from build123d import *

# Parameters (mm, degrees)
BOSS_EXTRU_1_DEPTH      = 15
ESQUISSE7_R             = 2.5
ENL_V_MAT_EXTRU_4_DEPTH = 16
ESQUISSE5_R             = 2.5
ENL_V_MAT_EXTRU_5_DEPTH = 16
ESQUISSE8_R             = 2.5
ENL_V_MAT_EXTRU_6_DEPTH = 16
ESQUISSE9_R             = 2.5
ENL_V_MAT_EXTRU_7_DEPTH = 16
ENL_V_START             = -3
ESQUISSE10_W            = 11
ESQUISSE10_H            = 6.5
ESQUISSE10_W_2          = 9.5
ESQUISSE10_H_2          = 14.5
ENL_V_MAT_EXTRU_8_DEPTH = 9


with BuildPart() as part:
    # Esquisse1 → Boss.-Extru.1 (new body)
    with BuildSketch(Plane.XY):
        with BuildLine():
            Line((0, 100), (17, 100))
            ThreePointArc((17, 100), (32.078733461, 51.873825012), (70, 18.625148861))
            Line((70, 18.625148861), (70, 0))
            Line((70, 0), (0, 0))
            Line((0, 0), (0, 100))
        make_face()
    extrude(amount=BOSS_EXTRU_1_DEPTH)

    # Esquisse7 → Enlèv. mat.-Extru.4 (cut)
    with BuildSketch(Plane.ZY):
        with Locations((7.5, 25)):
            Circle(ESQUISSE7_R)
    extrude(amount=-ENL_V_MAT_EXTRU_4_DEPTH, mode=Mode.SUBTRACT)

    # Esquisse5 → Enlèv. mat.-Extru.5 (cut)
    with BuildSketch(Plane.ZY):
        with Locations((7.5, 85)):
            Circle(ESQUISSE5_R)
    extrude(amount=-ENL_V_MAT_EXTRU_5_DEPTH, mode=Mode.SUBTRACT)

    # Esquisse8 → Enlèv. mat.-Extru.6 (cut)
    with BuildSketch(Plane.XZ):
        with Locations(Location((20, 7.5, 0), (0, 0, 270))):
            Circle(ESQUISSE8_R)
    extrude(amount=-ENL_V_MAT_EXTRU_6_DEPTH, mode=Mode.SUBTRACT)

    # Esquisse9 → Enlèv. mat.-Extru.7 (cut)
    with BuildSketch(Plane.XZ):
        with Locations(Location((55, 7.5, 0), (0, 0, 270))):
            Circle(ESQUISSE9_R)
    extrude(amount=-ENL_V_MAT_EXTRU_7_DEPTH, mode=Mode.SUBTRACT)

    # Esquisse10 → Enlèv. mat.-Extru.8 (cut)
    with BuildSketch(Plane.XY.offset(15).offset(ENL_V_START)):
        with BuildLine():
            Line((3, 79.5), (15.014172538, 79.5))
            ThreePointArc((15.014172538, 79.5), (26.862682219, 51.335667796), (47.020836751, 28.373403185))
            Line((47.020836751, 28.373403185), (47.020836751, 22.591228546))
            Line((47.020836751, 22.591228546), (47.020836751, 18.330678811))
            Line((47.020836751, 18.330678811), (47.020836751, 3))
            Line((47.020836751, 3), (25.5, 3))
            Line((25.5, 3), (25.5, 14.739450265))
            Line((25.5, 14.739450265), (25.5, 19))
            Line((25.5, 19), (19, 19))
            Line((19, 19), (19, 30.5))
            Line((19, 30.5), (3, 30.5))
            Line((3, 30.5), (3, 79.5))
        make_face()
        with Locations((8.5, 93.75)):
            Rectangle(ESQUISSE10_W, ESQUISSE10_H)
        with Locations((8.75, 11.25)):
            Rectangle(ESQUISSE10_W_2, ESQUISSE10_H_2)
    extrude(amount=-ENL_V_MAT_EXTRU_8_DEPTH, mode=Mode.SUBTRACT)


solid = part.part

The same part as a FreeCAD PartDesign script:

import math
import FreeCAD as App
import Part
import Sketcher
Q = App.Units.Quantity


def add_polygon(sketch, points):
    """Adds a closed chain of lines whose ends are joined by coincident constraints."""
    first, n = sketch.GeometryCount, len(points)
    for a, b in zip(points, points[1:] + points[:1]):
        sketch.addGeometry(Part.LineSegment(App.Vector(*a, 0), App.Vector(*b, 0)), False)
    for i in range(n):
        sketch.addConstraint(Sketcher.Constraint("Coincident", first + i, 2, first + (i + 1) % n, 1))

doc = App.newDocument("Part")
body = doc.addObject("PartDesign::Body", "Body")

sketch1 = body.newObject("Sketcher::SketchObject", "Sketch")
sketch1.AttachmentSupport = (doc.getObject("XY_Plane"), [""])
sketch1.MapMode = "FlatFace"
sketch1.addGeometry([
    Part.LineSegment(App.Vector(17, 100, 0), App.Vector(0, 100, 0)),
    Part.LineSegment(App.Vector(0, 100, 0), App.Vector(0, 0, 0)),
    Part.LineSegment(App.Vector(0, 0, 0), App.Vector(70, 0, 0)),
    Part.LineSegment(App.Vector(70, 0, 0), App.Vector(70, 18.625149, 0)),
    Part.ArcOfCircle(Part.Circle(App.Vector(110.262354, 102.795354, 0), App.Vector(0, 0, 1), 93.304237), math.radians(-178.283186), math.radians(-115.563864)),
], False)
sketch1.addConstraint([
    Sketcher.Constraint("Coincident", 0, 2, 1, 1),
    Sketcher.Constraint("Coincident", 1, 2, 2, 1),
    Sketcher.Constraint("Coincident", 2, 2, 3, 1),
    Sketcher.Constraint("Coincident", 3, 2, 4, 2),
    Sketcher.Constraint("Coincident", 4, 1, 0, 1),
    Sketcher.Constraint("Horizontal", 0),
    Sketcher.Constraint("Vertical", 1),
    Sketcher.Constraint("Horizontal", 2),
    Sketcher.Constraint("Vertical", 3),
    Sketcher.Constraint("Coincident", 1, 2, -1, 1),
    Sketcher.Constraint("DistanceX", 0, 2, 0, 1, Q("17 mm")),
    Sketcher.Constraint("DistanceX", 2, 1, 2, 2, Q("70 mm")),
    Sketcher.Constraint("DistanceY", 1, 2, 1, 1, Q("100 mm")),
    Sketcher.Constraint("Radius", 4, Q("93.304237 mm")),
    Sketcher.Constraint("DistanceY", 3, 1, 3, 2, Q("18.625149 mm")),
])
pad1 = body.newObject("PartDesign::Pad", "Pad")
pad1.Profile = sketch1
pad1.Length = 15

sketch2 = body.newObject("Sketcher::SketchObject", "Sketch001")
sketch2.AttachmentSupport = (doc.getObject("YZ_Plane"), [""])
sketch2.MapMode = "FlatFace"
sketch2.addGeometry(Part.Circle(App.Vector(25, 7.5, 0), App.Vector(0, 0, 1), 2.5), False)
sketch2.addConstraint([
    Sketcher.Constraint("Diameter", 0, Q("5 mm")),
    Sketcher.Constraint("DistanceX", -1, 1, 0, 3, Q("25 mm")),
    Sketcher.Constraint("DistanceY", -1, 1, 0, 3, Q("7.5 mm")),
])
pocket1 = body.newObject("PartDesign::Pocket", "Pocket")
pocket1.Profile = sketch2
pocket1.Length = 16
pocket1.Reversed = True

sketch3 = body.newObject("Sketcher::SketchObject", "Sketch002")
sketch3.AttachmentSupport = (doc.getObject("YZ_Plane"), [""])
sketch3.MapMode = "FlatFace"
sketch3.addGeometry(Part.Circle(App.Vector(85, 7.5, 0), App.Vector(0, 0, 1), 2.5), False)
sketch3.addConstraint([
    Sketcher.Constraint("Diameter", 0, Q("5 mm")),
    Sketcher.Constraint("DistanceX", -1, 1, 0, 3, Q("85 mm")),
    Sketcher.Constraint("DistanceY", -1, 1, 0, 3, Q("7.5 mm")),
])
pocket2 = body.newObject("PartDesign::Pocket", "Pocket001")
pocket2.Profile = sketch3
pocket2.Length = 16
pocket2.Reversed = True

sketch4 = body.newObject("Sketcher::SketchObject", "Sketch003")
sketch4.AttachmentSupport = (doc.getObject("XZ_Plane"), [""])
sketch4.MapMode = "FlatFace"
sketch4.addGeometry(Part.Circle(App.Vector(20, 7.5, 0), App.Vector(0, 0, 1), 2.5), False)
sketch4.addConstraint([
    Sketcher.Constraint("Diameter", 0, Q("5 mm")),
    Sketcher.Constraint("DistanceX", -1, 1, 0, 3, Q("20 mm")),
    Sketcher.Constraint("DistanceY", -1, 1, 0, 3, Q("7.5 mm")),
])
pocket3 = body.newObject("PartDesign::Pocket", "Pocket002")
pocket3.Profile = sketch4
pocket3.Length = 16

sketch5 = body.newObject("Sketcher::SketchObject", "Sketch004")
sketch5.AttachmentSupport = (doc.getObject("XZ_Plane"), [""])
sketch5.MapMode = "FlatFace"
sketch5.addGeometry(Part.Circle(App.Vector(55, 7.5, 0), App.Vector(0, 0, 1), 2.5), False)
sketch5.addConstraint([
    Sketcher.Constraint("Diameter", 0, Q("5 mm")),
    Sketcher.Constraint("DistanceX", -1, 1, 0, 3, Q("55 mm")),
    Sketcher.Constraint("DistanceY", -1, 1, 0, 3, Q("7.5 mm")),
])
pocket4 = body.newObject("PartDesign::Pocket", "Pocket003")
pocket4.Profile = sketch5
pocket4.Length = 16

sketch6 = body.newObject("Sketcher::SketchObject", "Sketch005")
sketch6.AttachmentSupport = (doc.getObject("XY_Plane"), [""])
sketch6.MapMode = "FlatFace"
sketch6.AttachmentOffset = App.Placement(App.Vector(0, 0, 12), App.Rotation())
sketch6.addGeometry(Part.LineSegment(App.Vector(15.014173, 79.5, 0), App.Vector(3, 79.5, 0)), False)
sketch6.addGeometry(Part.LineSegment(App.Vector(3, 79.5, 0), App.Vector(3, 30.5, 0)), False)
sketch6.addGeometry(Part.LineSegment(App.Vector(3, 30.5, 0), App.Vector(19, 30.5, 0)), False)
sketch6.addGeometry(Part.LineSegment(App.Vector(19, 30.5, 0), App.Vector(19, 19, 0)), False)
sketch6.addGeometry(Part.LineSegment(App.Vector(19, 19, 0), App.Vector(25.5, 19, 0)), False)
sketch6.addGeometry(Part.LineSegment(App.Vector(25.5, 19, 0), App.Vector(25.5, 3, 0)), False)
sketch6.addGeometry(Part.LineSegment(App.Vector(25.5, 3, 0), App.Vector(47.020837, 3, 0)), False)
sketch6.addGeometry(Part.LineSegment(App.Vector(47.020837, 3, 0), App.Vector(47.020837, 28.373403, 0)), False)
sketch6.addGeometry(Part.ArcOfCircle(Part.Circle(App.Vector(107.581508, 101.867886, 0), App.Vector(0, 0, 1), 95.231475), math.radians(-166.415502), math.radians(-129.489088)), False)
add_polygon(sketch6, [(3, 97), (3, 90.5), (14, 90.5), (14, 97)])
add_polygon(sketch6, [(4, 18.5), (4, 4), (13.5, 4), (13.5, 18.5)])
sketch6.addConstraint([
    Sketcher.Constraint("Coincident", 0, 2, 1, 1),
    Sketcher.Constraint("Coincident", 1, 2, 2, 1),
    Sketcher.Constraint("Coincident", 2, 2, 3, 1),
    Sketcher.Constraint("Coincident", 3, 2, 4, 1),
    Sketcher.Constraint("Coincident", 4, 2, 5, 1),
    Sketcher.Constraint("Coincident", 5, 2, 6, 1),
    Sketcher.Constraint("Coincident", 6, 2, 7, 1),
    Sketcher.Constraint("Coincident", 7, 2, 8, 2),
    Sketcher.Constraint("Coincident", 8, 1, 0, 1),
    Sketcher.Constraint("Horizontal", 0),
    Sketcher.Constraint("Vertical", 1),
    Sketcher.Constraint("Horizontal", 2),
    Sketcher.Constraint("Vertical", 3),
    Sketcher.Constraint("Horizontal", 4),
    Sketcher.Constraint("Vertical", 5),
    Sketcher.Constraint("Horizontal", 6),
    Sketcher.Constraint("Vertical", 7),
    Sketcher.Constraint("Vertical", 9),
    Sketcher.Constraint("Horizontal", 10),
    Sketcher.Constraint("Vertical", 11),
    Sketcher.Constraint("Horizontal", 12),
    Sketcher.Constraint("Vertical", 13),
    Sketcher.Constraint("Horizontal", 14),
    Sketcher.Constraint("Vertical", 15),
    Sketcher.Constraint("Horizontal", 16),
    Sketcher.Constraint("Vertical", 1, 2, 9, 2),
    Sketcher.Constraint("Equal", 2, 5),
    Sketcher.Constraint("Equal", 4, 9),
    Sketcher.Constraint("DistanceX", 2, 1, 2, 2, Q("16 mm")),
    Sketcher.Constraint("DistanceX", 10, 1, 10, 2, Q("11 mm")),
    Sketcher.Constraint("DistanceY", 1, 2, 1, 1, Q("49 mm")),
    Sketcher.Constraint("DistanceX", 4, 1, 4, 2, Q("6.5 mm")),
    Sketcher.Constraint("DistanceX", 14, 1, 14, 2, Q("9.5 mm")),
    Sketcher.Constraint("DistanceY", 3, 2, 3, 1, Q("11.5 mm")),
    Sketcher.Constraint("DistanceY", 13, 2, 13, 1, Q("14.5 mm")),
    Sketcher.Constraint("DistanceX", -1, 1, 0, 2, Q("3 mm")),
    Sketcher.Constraint("DistanceY", -1, 1, 3, 2, Q("19 mm")),
    Sketcher.Constraint("DistanceY", -1, 1, 11, 2, Q("97 mm")),
    Sketcher.Constraint("DistanceX", -1, 1, 13, 2, Q("4 mm")),
    Sketcher.Constraint("DistanceY", -1, 1, 13, 2, Q("4 mm")),
    Sketcher.Constraint("Radius", 8, Q("95.231475 mm")),
    Sketcher.Constraint("DistanceX", 0, 2, 0, 1, Q("12.014173 mm")),
    Sketcher.Constraint("DistanceX", 6, 1, 6, 2, Q("21.520837 mm")),
    Sketcher.Constraint("DistanceY", 7, 1, 7, 2, Q("25.373403 mm")),
])
pocket5 = body.newObject("PartDesign::Pocket", "Pocket004")
pocket5.Profile = sketch6
pocket5.Length = 9

doc.recompute()
